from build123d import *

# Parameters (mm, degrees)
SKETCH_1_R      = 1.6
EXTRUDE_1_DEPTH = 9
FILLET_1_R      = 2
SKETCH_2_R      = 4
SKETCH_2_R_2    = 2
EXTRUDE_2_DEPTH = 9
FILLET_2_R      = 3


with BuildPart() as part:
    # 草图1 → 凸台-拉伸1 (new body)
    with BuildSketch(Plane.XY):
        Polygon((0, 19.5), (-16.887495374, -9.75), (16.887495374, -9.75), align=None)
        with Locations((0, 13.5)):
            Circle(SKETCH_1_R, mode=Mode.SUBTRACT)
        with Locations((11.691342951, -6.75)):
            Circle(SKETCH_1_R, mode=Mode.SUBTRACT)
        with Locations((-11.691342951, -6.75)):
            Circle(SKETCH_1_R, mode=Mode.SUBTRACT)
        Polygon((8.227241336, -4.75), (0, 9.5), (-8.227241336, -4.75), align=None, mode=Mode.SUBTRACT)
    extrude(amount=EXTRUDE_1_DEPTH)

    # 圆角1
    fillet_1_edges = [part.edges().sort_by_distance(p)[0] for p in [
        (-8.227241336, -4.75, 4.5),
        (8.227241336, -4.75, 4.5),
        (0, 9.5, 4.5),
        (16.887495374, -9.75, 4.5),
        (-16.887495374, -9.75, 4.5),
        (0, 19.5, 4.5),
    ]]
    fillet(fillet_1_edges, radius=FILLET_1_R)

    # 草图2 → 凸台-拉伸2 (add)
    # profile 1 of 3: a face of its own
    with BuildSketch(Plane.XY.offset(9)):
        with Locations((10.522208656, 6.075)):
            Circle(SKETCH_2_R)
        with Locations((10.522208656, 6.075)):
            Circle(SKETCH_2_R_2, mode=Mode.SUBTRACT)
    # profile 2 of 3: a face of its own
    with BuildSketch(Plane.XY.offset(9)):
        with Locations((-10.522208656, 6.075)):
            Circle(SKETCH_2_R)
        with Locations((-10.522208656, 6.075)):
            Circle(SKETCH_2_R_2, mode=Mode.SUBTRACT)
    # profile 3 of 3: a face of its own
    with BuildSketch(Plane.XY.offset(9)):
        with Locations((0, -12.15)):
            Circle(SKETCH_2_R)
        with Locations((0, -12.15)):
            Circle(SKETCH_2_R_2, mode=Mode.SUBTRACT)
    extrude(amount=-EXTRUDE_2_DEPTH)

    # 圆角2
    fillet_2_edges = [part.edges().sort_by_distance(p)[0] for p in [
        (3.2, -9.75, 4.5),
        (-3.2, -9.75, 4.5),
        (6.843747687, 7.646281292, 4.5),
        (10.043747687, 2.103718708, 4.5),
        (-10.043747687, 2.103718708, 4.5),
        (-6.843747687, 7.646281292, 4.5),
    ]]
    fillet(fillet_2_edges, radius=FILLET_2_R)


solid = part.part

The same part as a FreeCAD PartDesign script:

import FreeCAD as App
import Part
import Sketcher

V = App.Vector
Q = App.Units.Quantity


def edges_at(feature, points):
    """Names of the edges that pass closest to the given points."""
    edges = feature.Shape.Edges
    near = lambda p: min(range(len(edges)), key=lambda i: edges[i].distToShape(Part.Vertex(*p))[0])
    return sorted({f"Edge{near(p) + 1}" for p in points})


def add_polygon(sketch, points):
    """Adds a closed chain of lines whose ends are joined by coincident constraints."""
    first, n = sketch.GeometryCount, len(points)
    for a, b in zip(points, points[1:] + points[:1]):
        sketch.addGeometry(Part.LineSegment(App.Vector(*a, 0), App.Vector(*b, 0)), False)
    for i in range(n):
        sketch.addConstraint(Sketcher.Constraint("Coincident", first + i, 2, first + (i + 1) % n, 1))

doc = App.newDocument("Part")
params = doc.addObject("Spreadsheet::Sheet", "Params")
for row, (alias, value) in enumerate([
    ("sketch1_diameter", "3.2 mm"),
    ("pad1_length", "9 mm"),
    ("fillet_radius", "2 mm"),
    ("sketch2_diameter", "8 mm"),
    ("sketch2_diameter2", "4 mm"),
    ("pad2_length", "9 mm"),
    ("fillet2_radius", "3 mm"),
], start=1):
    params.set(f"A{row}", alias)
    params.set(f"B{row}", "=" + value)
    params.setAlias(f"B{row}", alias)

body = doc.addObject("PartDesign::Body", "Body")

# Sketch on XY plane
sketch1 = body.newObject("Sketcher::SketchObject", "Sketch")
sketch1.AttachmentSupport = (doc.getObject("XY_Plane"), [""])
sketch1.MapMode = "FlatFace"
add_polygon(sketch1, [(0, 19.5), (-16.9, -9.8), (16.9, -9.8)])  # lines 0-2
sketch1.addGeometry(Part.Circle(V(-11.7, -6.8, 0), V(0, 0, 1), 1.6), False)  # 3
sketch1.addGeometry(Part.Circle(V(11.7, -6.8, 0), V(0, 0, 1), 1.6), False)  # 4
add_polygon(sketch1, [(0, 9.5), (8.2, -4.8), (-8.2, -4.8)])  # lines 5-7
sketch1.addGeometry(Part.Circle(V(0, 13.5, 0), V(0, 0, 1), 1.6), False)  # 8
sketch1.addConstraint([
    Sketcher.Constraint("Horizontal", 1),
    Sketcher.Constraint("Horizontal", 6),
    Sketcher.Constraint("Equal", 3, 4),
    Sketcher.Constraint("Equal", 4, 8),
    Sketcher.Constraint("Symmetric", 3, 3, 4, 3, -2),
    Sketcher.Constraint("PointOnObject", 8, 3, -2),
    Sketcher.Constraint("PointOnObject", 2, 2, -2),
    Sketcher.Constraint("PointOnObject", 7, 2, -2),
    Sketcher.Constraint("Parallel", 2, 5),
    Sketcher.Constraint("Parallel", 0, 7),
    Sketcher.Constraint("Equal", 0, 2),
    Sketcher.Constraint("Diameter", 3, Q("3.2 mm")),
    Sketcher.Constraint("Angle", 0, Q("-120 deg")),
    Sketcher.Constraint("DistanceY", 0, 2, 3, 3, Q("3 mm")),
    Sketcher.Constraint("DistanceY", 8, 3, 2, 2, Q("6 mm")),
    Sketcher.Constraint("DistanceY", 4, 3, 5, 2, Q("2 mm")),
    Sketcher.Constraint("DistanceY", 7, 2, 8, 3, Q("4 mm")),
    Sketcher.Constraint("DistanceY", -1, 1, 8, 3, Q("13.5 mm")),
    Sketcher.Constraint("DistanceY", 3, 3, -1, 1, Q("6.75 mm")),
    Sketcher.Constraint("DistanceX", 5, 2, 4, 3, Q("3.464102 mm")),
])
sketch1.setExpression("Constraints[17]", "Params.sketch1_diameter")
pad1 = body.newObject("PartDesign::Pad", "Pad")
pad1.Profile = sketch1
pad1.setExpression("Length", "Params.pad1_length")
doc.recompute()

fillet = body.newObject("PartDesign::Fillet", "Fillet")
fillet.Base = (pad1, edges_at(pad1, [
    (-8.227, -4.75, 4.5),
    (8.227, -4.75, 4.5),
    (0, 9.5, 4.5),
    (16.887, -9.75, 4.5),
    (-16.887, -9.75, 4.5),
    (0, 19.5, 4.5),
]))
fillet.setExpression("Radius", "Params.fillet_radius")

# Sketch on XY plane
sketch2 = body.newObject("Sketcher::SketchObject", "Sketch001")
sketch2.AttachmentSupport = (doc.getObject("XY_Plane"), [""])
sketch2.MapMode = "FlatFace"
sketch2.AttachmentOffset = App.Placement(V(0, 0, 9), App.Rotation())
sketch2.addGeometry([
    Part.Circle(V(10.5, 6.1, 0), V(0, 0, 1), 4),  # 0
    Part.Circle(V(10.5, 6.1, 0), V(0, 0, 1), 2),  # 1
    Part.Circle(V(-10.5, 6.1, 0), V(0, 0, 1), 4),  # 2
    Part.Circle(V(-10.5, 6.1, 0), V(0, 0, 1), 2),  # 3
    Part.Circle(V(0, -12.2, 0), V(0, 0, 1), 4),  # 4
    Part.Circle(V(0, -12.2, 0), V(0, 0, 1), 2),  # 5
], False)
sketch2.addConstraint([
    Sketcher.Constraint("Coincident", 1, 3, 0, 3),
    Sketcher.Constraint("Coincident", 3, 3, 2, 3),
    Sketcher.Constraint("Coincident", 5, 3, 4, 3),
    Sketcher.Constraint("Equal", 0, 2),
    Sketcher.Constraint("Equal", 1, 3),
    Sketcher.Constraint("Equal", 2, 4),
    Sketcher.Constraint("Equal", 3, 5),
    Sketcher.Constraint("Symmetric", 0, 3, 2, 3, -2),
    Sketcher.Constraint("PointOnObject", 4, 3, -2),
    Sketcher.Constraint("Diameter", 0, Q("8 mm")),
    Sketcher.Constraint("Diameter", 1, Q("4 mm")),
    Sketcher.Constraint("DistanceY", 4, 3, -1, 1, Q("12.15 mm")),
    Sketcher.Constraint("DistanceY", -1, 1, 0, 3, Q("6.075 mm")),
    Sketcher.Constraint("DistanceX", -1, 1, 0, 3, Q("10.522209 mm")),
])
sketch2.setExpression("Constraints[9]", "Params.sketch2_diameter")
sketch2.setExpression("Constraints[10]", "Params.sketch2_diameter2")
pad2 = body.newObject("PartDesign::Pad", "Pad001")
pad2.Profile = sketch2
pad2.setExpression("Length", "Params.pad2_length")
pad2.Reversed = True
doc.recompute()

fillet2 = body.newObject("PartDesign::Fillet", "Fillet001")
fillet2.Base = (pad2, edges_at(pad2, [
    (3.2, -9.75, 4.5),
    (-3.2, -9.75, 4.5),
    (6.844, 7.646, 4.5),
    (10.044, 2.104, 4.5),
    (-10.044, 2.104, 4.5),
    (-6.844, 7.646, 4.5),
]))
fillet2.setExpression("Radius", "Params.fillet2_radius")

doc.recompute()
